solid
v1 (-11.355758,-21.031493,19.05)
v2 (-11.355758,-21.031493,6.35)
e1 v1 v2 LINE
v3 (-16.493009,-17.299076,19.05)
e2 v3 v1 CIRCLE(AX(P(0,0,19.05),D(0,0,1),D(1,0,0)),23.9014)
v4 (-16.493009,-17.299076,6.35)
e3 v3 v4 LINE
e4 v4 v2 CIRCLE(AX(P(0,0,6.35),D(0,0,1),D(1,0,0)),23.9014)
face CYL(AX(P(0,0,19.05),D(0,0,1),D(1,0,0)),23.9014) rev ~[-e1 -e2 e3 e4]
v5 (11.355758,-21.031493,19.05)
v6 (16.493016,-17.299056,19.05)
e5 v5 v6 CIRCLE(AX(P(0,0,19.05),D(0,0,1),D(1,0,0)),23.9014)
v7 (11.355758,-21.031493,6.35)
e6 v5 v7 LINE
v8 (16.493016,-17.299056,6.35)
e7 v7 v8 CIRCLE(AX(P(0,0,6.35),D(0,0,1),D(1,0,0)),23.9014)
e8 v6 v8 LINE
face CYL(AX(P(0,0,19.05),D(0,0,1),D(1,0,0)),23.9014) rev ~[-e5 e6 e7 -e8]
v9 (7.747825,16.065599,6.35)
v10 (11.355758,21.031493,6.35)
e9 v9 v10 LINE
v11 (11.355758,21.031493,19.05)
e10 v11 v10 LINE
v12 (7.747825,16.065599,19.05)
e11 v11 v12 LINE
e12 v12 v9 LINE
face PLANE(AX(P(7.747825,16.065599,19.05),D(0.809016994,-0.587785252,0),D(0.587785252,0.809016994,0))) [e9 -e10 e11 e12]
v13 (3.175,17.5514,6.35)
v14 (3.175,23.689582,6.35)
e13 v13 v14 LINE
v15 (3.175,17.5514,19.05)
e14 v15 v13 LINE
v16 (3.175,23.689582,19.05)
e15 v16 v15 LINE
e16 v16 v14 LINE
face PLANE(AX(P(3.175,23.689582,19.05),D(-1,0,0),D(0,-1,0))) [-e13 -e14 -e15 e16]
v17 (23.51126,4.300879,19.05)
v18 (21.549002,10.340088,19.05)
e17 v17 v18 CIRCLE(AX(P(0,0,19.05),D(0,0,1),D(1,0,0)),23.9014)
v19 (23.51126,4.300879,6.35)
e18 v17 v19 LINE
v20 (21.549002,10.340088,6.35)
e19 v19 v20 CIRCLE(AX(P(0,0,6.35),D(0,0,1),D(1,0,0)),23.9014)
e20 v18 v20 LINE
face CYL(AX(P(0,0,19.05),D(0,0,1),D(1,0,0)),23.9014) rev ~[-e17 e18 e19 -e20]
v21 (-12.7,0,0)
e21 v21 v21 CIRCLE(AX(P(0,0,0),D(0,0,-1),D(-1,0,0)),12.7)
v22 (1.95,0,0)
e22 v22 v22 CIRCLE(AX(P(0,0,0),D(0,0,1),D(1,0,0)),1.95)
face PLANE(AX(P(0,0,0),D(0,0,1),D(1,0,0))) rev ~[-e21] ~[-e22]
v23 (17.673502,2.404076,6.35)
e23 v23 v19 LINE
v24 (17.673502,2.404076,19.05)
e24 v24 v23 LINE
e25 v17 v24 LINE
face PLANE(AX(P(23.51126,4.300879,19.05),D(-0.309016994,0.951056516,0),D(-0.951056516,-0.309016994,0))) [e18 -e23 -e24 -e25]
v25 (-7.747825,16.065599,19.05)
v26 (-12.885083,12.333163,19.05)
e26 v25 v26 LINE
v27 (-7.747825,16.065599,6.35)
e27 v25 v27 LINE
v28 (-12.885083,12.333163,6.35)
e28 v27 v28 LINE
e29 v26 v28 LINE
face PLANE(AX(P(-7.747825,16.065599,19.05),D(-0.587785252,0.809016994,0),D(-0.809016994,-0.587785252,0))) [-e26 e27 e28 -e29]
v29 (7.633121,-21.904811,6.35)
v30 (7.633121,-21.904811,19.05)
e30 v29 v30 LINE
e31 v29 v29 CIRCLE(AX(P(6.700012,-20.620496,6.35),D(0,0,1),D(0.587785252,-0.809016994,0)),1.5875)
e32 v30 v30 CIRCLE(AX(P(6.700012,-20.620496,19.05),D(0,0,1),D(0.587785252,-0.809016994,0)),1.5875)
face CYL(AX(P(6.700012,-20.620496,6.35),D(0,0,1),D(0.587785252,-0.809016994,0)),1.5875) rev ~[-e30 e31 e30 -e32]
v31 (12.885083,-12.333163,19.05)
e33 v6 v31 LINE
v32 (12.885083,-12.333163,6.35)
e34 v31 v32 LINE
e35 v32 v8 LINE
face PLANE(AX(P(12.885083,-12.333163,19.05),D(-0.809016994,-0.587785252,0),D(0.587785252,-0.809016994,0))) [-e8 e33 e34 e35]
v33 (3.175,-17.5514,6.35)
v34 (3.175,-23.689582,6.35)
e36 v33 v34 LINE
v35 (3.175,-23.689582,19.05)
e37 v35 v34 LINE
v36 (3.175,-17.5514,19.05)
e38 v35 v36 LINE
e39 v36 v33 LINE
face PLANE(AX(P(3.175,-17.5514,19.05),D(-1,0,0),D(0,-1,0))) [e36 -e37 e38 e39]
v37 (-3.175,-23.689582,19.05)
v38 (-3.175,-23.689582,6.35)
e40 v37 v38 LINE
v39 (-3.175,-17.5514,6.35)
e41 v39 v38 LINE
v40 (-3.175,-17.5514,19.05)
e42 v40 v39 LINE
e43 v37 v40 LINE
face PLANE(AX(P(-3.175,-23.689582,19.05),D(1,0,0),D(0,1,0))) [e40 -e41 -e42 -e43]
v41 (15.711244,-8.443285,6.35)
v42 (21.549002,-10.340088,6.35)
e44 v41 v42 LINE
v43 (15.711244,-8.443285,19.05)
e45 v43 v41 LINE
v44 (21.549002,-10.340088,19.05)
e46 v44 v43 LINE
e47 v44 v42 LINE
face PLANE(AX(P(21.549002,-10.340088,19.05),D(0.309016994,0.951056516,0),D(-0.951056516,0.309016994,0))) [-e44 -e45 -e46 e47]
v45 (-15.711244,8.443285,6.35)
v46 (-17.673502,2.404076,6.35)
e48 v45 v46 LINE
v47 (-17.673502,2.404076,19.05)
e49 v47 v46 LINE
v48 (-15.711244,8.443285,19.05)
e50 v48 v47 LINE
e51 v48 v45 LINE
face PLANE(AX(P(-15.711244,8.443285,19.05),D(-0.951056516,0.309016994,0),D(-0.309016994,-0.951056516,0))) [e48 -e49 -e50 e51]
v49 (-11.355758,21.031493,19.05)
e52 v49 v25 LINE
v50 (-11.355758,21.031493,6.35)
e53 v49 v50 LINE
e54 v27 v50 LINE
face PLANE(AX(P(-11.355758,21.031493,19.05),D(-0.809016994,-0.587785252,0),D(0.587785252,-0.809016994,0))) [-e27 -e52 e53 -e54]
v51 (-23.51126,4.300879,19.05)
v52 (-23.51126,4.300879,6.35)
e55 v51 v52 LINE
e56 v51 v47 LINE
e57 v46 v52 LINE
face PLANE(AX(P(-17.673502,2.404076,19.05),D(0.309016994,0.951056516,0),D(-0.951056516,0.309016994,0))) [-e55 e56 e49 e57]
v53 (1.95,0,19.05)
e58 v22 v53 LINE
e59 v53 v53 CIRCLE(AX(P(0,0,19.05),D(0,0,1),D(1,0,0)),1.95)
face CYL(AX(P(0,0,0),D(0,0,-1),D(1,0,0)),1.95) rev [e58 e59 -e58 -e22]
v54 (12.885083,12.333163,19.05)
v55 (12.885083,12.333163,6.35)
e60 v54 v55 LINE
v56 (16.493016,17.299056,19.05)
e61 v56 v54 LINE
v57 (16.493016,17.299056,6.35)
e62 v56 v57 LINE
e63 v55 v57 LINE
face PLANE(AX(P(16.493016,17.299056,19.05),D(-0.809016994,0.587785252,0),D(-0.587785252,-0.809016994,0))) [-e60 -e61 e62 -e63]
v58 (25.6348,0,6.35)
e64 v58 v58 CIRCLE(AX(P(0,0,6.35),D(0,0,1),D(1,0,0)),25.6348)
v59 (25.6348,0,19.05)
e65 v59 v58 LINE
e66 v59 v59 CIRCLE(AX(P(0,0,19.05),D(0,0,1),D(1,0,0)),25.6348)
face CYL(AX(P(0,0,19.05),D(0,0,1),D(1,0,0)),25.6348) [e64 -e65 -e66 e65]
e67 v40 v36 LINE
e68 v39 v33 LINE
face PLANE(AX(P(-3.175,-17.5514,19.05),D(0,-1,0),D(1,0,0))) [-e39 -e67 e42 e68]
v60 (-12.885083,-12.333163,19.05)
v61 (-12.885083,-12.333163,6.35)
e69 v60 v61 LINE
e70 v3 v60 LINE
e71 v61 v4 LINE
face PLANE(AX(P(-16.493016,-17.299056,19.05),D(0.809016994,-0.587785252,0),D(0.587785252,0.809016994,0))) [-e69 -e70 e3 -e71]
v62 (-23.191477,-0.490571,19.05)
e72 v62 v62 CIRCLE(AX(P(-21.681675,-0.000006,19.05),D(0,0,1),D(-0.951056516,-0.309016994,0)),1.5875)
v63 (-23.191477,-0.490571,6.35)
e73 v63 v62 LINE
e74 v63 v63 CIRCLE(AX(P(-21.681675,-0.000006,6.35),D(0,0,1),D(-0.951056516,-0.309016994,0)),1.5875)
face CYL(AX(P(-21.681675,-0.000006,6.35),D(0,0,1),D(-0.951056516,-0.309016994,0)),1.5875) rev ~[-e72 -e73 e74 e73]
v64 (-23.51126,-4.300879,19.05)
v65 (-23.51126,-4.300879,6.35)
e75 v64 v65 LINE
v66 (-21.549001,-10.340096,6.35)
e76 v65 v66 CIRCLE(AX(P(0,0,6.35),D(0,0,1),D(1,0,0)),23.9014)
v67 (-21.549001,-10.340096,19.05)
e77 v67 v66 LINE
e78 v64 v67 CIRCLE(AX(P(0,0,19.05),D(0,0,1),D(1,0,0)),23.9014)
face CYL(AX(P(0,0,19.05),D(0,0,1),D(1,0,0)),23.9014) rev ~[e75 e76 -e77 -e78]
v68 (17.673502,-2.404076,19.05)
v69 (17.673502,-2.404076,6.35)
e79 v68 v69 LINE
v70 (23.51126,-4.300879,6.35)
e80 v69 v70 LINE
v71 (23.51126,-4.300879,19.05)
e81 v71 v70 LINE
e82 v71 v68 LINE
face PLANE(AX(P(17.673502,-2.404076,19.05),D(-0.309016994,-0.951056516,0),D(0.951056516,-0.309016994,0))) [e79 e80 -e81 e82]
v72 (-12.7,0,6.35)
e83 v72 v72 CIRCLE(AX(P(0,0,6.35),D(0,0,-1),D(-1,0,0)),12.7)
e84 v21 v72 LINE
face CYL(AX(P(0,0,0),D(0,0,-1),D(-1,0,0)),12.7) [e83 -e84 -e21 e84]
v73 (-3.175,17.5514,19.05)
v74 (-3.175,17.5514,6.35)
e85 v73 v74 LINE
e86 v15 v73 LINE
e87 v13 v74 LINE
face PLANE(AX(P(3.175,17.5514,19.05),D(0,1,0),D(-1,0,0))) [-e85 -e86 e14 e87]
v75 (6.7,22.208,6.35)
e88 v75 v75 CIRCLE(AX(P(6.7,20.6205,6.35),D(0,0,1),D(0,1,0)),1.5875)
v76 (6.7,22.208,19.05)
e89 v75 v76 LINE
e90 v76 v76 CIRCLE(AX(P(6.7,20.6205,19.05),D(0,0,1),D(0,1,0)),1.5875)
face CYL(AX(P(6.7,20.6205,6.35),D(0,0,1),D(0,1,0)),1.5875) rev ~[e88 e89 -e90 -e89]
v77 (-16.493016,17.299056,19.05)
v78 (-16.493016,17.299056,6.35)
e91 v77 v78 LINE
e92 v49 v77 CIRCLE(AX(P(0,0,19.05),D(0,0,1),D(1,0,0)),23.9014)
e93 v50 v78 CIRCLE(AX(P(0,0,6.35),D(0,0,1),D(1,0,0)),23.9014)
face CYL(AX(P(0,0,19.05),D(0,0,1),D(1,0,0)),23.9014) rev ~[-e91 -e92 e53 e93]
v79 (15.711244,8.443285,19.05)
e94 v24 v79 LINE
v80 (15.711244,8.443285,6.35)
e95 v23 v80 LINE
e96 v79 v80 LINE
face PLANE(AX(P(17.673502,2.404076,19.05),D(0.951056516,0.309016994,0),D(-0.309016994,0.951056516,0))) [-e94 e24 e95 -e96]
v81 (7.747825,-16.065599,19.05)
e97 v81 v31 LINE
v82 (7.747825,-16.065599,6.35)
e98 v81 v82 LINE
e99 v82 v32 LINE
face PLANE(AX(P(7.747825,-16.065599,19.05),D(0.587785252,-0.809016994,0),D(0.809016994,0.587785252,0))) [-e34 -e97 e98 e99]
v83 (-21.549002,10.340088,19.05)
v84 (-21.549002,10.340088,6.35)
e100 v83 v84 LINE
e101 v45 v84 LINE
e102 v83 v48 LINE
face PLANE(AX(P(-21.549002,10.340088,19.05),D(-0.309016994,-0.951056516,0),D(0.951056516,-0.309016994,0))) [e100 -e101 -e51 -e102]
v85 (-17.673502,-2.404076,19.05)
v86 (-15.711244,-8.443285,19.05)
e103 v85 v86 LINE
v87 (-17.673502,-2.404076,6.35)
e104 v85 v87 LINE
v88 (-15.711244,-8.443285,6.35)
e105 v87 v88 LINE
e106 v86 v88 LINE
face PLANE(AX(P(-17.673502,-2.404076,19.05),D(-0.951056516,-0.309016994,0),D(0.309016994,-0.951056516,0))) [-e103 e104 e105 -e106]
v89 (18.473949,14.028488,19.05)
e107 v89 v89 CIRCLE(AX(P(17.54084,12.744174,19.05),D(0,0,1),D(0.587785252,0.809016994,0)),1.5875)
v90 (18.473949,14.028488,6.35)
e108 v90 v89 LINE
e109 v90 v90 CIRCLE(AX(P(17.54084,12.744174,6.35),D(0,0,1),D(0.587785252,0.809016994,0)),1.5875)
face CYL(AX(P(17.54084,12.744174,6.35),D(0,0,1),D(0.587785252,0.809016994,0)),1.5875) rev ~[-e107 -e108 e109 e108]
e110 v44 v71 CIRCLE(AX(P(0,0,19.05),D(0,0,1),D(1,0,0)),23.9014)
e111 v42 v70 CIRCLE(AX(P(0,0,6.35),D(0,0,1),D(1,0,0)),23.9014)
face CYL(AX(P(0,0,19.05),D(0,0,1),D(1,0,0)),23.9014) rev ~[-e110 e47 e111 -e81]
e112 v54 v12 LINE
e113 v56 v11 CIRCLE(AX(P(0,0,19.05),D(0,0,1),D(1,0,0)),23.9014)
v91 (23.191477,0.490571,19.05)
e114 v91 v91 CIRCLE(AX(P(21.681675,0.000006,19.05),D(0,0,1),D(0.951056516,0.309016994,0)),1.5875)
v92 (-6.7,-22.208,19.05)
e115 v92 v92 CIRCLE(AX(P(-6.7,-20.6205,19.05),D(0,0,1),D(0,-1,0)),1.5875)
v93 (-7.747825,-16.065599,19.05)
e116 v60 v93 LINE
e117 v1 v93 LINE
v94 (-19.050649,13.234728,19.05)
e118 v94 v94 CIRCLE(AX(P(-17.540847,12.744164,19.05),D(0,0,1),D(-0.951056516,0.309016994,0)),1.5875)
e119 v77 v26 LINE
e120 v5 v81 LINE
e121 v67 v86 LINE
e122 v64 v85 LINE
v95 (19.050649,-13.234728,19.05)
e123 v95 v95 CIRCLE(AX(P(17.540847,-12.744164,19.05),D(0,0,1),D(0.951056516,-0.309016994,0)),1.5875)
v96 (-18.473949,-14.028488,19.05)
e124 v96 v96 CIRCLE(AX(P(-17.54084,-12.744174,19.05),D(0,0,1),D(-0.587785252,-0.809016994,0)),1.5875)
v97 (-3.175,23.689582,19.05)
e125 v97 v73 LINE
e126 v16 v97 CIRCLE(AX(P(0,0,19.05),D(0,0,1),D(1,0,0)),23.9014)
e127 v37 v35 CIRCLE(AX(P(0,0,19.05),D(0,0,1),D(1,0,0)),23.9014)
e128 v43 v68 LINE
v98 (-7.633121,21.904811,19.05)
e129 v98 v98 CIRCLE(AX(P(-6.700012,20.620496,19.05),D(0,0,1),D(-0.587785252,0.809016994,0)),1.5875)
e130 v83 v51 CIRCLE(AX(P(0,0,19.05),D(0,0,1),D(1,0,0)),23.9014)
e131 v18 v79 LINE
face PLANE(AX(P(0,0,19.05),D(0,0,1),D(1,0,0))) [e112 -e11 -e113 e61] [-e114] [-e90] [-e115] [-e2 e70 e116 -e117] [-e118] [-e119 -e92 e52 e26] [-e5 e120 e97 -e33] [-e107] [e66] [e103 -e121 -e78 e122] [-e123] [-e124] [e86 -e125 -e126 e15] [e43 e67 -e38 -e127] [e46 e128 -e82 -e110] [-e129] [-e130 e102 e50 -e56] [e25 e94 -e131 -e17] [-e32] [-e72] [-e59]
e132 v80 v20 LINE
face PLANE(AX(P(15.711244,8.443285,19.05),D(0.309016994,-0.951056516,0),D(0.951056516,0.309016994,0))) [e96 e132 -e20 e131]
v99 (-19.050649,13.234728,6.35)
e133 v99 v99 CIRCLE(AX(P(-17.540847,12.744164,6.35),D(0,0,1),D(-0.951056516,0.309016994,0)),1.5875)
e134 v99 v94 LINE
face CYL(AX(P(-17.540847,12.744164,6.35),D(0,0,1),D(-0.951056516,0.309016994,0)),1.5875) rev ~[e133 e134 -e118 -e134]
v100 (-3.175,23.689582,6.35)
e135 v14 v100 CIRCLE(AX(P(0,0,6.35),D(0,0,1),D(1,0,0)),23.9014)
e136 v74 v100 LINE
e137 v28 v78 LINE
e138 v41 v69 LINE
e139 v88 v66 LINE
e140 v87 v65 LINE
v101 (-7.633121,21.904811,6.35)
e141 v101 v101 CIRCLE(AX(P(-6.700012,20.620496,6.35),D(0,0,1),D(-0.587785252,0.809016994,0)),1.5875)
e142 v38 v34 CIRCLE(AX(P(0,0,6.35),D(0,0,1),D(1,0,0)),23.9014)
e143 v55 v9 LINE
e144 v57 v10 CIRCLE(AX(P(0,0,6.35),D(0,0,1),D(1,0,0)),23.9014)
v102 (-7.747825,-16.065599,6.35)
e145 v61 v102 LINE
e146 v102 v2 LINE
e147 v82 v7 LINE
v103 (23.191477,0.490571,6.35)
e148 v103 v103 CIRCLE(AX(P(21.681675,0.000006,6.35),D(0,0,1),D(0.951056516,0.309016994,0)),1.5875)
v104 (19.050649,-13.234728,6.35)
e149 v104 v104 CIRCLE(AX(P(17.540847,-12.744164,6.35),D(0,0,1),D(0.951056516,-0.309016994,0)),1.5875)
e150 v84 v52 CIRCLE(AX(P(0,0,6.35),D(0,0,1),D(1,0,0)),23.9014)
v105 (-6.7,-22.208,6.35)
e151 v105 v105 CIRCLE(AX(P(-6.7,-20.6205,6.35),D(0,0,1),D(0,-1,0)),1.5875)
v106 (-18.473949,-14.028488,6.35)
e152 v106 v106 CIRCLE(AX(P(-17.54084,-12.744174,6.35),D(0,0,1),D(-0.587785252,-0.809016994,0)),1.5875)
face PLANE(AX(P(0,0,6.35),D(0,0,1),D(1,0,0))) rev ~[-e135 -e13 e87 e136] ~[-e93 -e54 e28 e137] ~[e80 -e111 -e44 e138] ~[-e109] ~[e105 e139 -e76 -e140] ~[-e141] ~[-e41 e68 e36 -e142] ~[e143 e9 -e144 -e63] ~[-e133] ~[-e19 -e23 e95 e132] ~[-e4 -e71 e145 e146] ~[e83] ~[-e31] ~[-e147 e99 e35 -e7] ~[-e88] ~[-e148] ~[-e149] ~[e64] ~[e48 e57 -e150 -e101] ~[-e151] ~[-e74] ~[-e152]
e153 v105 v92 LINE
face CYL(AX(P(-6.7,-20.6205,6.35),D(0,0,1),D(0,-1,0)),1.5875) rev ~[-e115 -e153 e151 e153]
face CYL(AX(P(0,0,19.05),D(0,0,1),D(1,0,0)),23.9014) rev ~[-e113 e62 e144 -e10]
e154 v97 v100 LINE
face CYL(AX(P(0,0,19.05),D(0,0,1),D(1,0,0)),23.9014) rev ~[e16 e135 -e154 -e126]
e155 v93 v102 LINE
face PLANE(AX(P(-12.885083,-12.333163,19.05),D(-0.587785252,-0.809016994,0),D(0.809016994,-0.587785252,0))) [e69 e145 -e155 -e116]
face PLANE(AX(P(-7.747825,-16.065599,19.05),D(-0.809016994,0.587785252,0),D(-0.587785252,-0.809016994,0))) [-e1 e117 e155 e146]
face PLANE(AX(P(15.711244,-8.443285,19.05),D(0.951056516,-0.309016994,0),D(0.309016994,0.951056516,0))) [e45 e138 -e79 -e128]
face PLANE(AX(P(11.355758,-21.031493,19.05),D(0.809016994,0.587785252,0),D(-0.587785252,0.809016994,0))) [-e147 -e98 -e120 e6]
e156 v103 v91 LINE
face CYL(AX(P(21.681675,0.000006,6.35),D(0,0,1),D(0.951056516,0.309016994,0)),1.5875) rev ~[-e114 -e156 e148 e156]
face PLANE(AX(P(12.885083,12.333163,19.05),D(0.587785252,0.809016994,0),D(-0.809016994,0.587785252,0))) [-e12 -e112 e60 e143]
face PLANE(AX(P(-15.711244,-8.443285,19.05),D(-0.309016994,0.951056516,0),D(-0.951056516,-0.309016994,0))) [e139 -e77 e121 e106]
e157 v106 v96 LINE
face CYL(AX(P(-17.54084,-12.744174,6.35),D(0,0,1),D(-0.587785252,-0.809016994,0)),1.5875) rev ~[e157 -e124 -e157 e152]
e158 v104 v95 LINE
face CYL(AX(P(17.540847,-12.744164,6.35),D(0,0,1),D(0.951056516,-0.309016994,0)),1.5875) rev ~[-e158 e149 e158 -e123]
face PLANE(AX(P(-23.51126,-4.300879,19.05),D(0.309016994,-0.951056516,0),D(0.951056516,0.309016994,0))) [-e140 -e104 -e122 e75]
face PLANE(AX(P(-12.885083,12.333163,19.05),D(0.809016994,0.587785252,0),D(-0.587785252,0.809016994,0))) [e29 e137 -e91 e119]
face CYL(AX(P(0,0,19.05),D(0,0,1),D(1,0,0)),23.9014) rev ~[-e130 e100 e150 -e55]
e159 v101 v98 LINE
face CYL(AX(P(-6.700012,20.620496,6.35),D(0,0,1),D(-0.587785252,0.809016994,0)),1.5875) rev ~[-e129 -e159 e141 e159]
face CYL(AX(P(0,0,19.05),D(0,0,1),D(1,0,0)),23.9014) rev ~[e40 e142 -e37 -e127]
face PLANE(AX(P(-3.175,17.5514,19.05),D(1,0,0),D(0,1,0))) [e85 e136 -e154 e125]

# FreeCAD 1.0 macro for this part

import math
import FreeCAD as App
import Part
import Sketcher

V = App.Vector
Q = App.Units.Quantity

doc = App.newDocument("Part")
body = doc.addObject("PartDesign::Body", "Body")

# Sketch on XY plane
sketch1 = doc.addObject("Sketcher::SketchObject", "Sketch")
body.addObject(sketch1)
sketch1.AttachmentSupport = (doc.XY_Plane, [""])
sketch1.MapMode = "FlatFace"
sketch1.addGeometry([
    Part.Circle(V(0, 0, 0), V(0, 0, 1), 23.9),
    Part.Circle(V(0, 0, 0), V(0, 0, 1), 1.9),
], False)
sketch1.addConstraint([
    Sketcher.Constraint("Coincident", 0, 3, -1, 1),
    Sketcher.Constraint("Coincident", 1, 3, -1, 1),
    Sketcher.Constraint("Diameter", 0, Q("1.882 in")),
    Sketcher.Constraint("Diameter", 1, 3.9),
])
pad1 = doc.addObject("PartDesign::Pad", "Pad")
body.addObject(pad1)
pad1.Profile = sketch1
pad1.Length = Q("0.75 in")

# Sketch on XY plane
sketch2 = doc.addObject("Sketcher::SketchObject", "Sketch001")
body.addObject(sketch2)
sketch2.AttachmentSupport = (doc.XY_Plane, [""])
sketch2.MapMode = "FlatFace"
sketch2.addGeometry([
    Part.Circle(V(0, 0, 0), V(0, 0, 1), 24),
    Part.Circle(V(0, 0, 0), V(0, 0, 1), 13),
], False)
sketch2.addConstraint([
    Sketcher.Constraint("Coincident", 0, 3, -1, 1),
    Sketcher.Constraint("Coincident", 1, 3, -1, 1),
    Sketcher.Constraint("Diameter", 1, Q("1 in")),
    Sketcher.Constraint("Diameter", 0, Q("1.882 in")),
])
pocket1 = doc.addObject("PartDesign::Pocket", "Pocket")
body.addObject(pocket1)
pocket1.Profile = sketch2
pocket1.Length = Q("0.25 in")
pocket1.Reversed = True

# Sketch on XY plane
sketch3 = doc.addObject("Sketcher::SketchObject", "Sketch002")
body.addObject(sketch3)
sketch3.AttachmentSupport = (doc.XY_Plane, [""])
sketch3.MapMode = "FlatFace"
sketch3.AttachmentOffset = App.Placement(V(0, 0, 0.75 * 25.4), App.Rotation())
sketch3.addGeometry([
    Part.LineSegment(V(-3, -18, 0), V(-3, -24, 0)),
    Part.LineSegment(V(-3, -24, 0), V(3, -24, 0)),
    Part.LineSegment(V(3, -24, 0), V(3, -18, 0)),
    Part.LineSegment(V(3, -18, 0), V(-3, -18, 0)),
], False)
sketch3.addConstraint([
    Sketcher.Constraint("Coincident", 0, 2, 1, 1),
    Sketcher.Constraint("Coincident", 1, 2, 2, 1),
    Sketcher.Constraint("Coincident", 2, 2, 3, 1),
    Sketcher.Constraint("Coincident", 3, 2, 0, 1),
    Sketcher.Constraint("Vertical", 0),
    Sketcher.Constraint("Horizontal", 1),
    Sketcher.Constraint("Vertical", 2),
    Sketcher.Constraint("Horizontal", 3),
    Sketcher.Constraint("Equal", 3, 0),
    Sketcher.Constraint("DistanceX", 1, 1, 1, 2, Q("0.25 in")),
    Sketcher.Constraint("DistanceX", 0, 2, -1, 1, Q("0.125 in")),
    Sketcher.Constraint("DistanceY", 0, 2, -1, 1, Q("0.941 in")),
])
pocket2 = doc.addObject("PartDesign::Pocket", "Pocket001")
body.addObject(pocket2)
pocket2.Profile = sketch3
pocket2.Length = Q("0.5 in")
doc.recompute()

polarpattern = doc.addObject("PartDesign::PolarPattern", "PolarPattern")
body.addObject(polarpattern)
polarpattern.Originals = [pocket2]
polarpattern.Axis = (doc.Z_Axis, [""])
polarpattern.Angle = 360
polarpattern.Occurrences = 10
body.Tip = polarpattern

# Sketch on XY plane
sketch4 = doc.addObject("Sketcher::SketchObject", "Sketch003")
body.addObject(sketch4)
sketch4.AttachmentSupport = (doc.XY_Plane, [""])
sketch4.MapMode = "FlatFace"
sketch4.AttachmentOffset = App.Placement(V(0, 0, 0.75 * 25.4), App.Rotation())
sketch4.addGeometry([
    Part.Circle(V(0, 0, 0), V(0, 0, 1), 26),
    Part.ArcOfCircle(Part.Circle(V(0, 0, 0), V(0, 0, 1), 24), math.radians(-154), math.radians(-134)),
    Part.ArcOfCircle(Part.Circle(V(0, 0, 0), V(0, 0, 1), 24), math.radians(-134), math.radians(206)),
], False)
sketch4.addConstraint([
    Sketcher.Constraint("Tangent", 1, 1, 2, 2),
    Sketcher.Constraint("Coincident", 2, 1, 1, 2),
    Sketcher.Constraint("Coincident", 0, 3, -1, 1),
    Sketcher.Constraint("Coincident", 1, 3, -1, 1),
    Sketcher.Constraint("Radius", 1, Q("0.941 in")),
    Sketcher.Constraint("Diameter", 0, Q("2.0185 in")),
    Sketcher.Constraint("DistanceY", 1, 1, -1, 1, Q("0.4071 in")),
    Sketcher.Constraint("DistanceX", 2, 1, -1, 1, 16.493),
])
pad2 = doc.addObject("PartDesign::Pad", "Pad001")
body.addObject(pad2)
pad2.Profile = sketch4
pad2.Length = Q("0.5 in")
pad2.Reversed = True

# Sketch on XY plane
sketch5 = doc.addObject("Sketcher::SketchObject", "Sketch004")
body.addObject(sketch5)
sketch5.AttachmentSupport = (doc.XY_Plane, [""])
sketch5.MapMode = "FlatFace"
sketch5.AttachmentOffset = App.Placement(V(0, 0, 0.25 * 25.4), App.Rotation())
sketch5.addGeometry(Part.Circle(V(6.7, 20.6, 0), V(0, 0, 1), 1.6), False)
sketch5.addConstraint([
    Sketcher.Constraint("Diameter", 0, Q("0.125 in")),
    Sketcher.Constraint("DistanceX", -1, 1, 0, 3, 6.7),
    Sketcher.Constraint("DistanceY", -1, 1, 0, 3, 20.6205),
])
doc.recompute()
hole = doc.addObject("PartDesign::Hole", "Hole")
body.addObject(hole)
hole.Profile = sketch5
hole.ThreadType = "None"
hole.Diameter = Q("0.125 in")
hole.DepthType = "Dimension"
hole.Depth = Q("1 in")
hole.DrillPoint = "Angled"
hole.DrillPointAngle = 118
hole.Reversed = True
doc.recompute()

polarpattern2 = doc.addObject("PartDesign::PolarPattern", "PolarPattern001")
body.addObject(polarpattern2)
polarpattern2.Originals = [hole]
polarpattern2.Axis = (doc.Z_Axis, [""])
polarpattern2.Angle = 360
polarpattern2.Occurrences = 10
body.Tip = polarpattern2

doc.recompute()
